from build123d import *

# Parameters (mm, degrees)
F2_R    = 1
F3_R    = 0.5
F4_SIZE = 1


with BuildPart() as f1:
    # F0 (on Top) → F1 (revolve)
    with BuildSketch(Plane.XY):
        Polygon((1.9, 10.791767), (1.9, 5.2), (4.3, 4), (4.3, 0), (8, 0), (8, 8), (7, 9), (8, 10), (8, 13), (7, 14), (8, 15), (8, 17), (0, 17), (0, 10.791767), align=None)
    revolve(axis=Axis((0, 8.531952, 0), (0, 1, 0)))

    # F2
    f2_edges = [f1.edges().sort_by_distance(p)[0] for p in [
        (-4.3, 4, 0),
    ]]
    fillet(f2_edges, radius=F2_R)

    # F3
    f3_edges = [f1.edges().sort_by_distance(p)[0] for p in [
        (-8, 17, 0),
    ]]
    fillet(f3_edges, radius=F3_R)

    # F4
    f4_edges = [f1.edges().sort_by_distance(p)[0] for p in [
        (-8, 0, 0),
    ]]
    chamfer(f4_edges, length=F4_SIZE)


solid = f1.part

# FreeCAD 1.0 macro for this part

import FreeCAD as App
import Part
import Sketcher

V = App.Vector


def edges_at(feature, points):
    """Names of the edges that pass closest to the given points."""
    edges = feature.Shape.Edges
    near = lambda p: min(range(len(edges)), key=lambda i: edges[i].distToShape(Part.Vertex(*p))[0])
    return sorted({f"Edge{near(p) + 1}" for p in points})

doc = App.newDocument("Part")
body = doc.addObject("PartDesign::Body", "Body")

# Sketch on XY plane
sketch1 = doc.addObject("Sketcher::SketchObject", "Sketch")
body.addObject(sketch1)
sketch1.AttachmentSupport = (doc.XY_Plane, [""])
sketch1.MapMode = "FlatFace"
sketch1.addGeometry([
    Part.LineSegment(V(1.9, 10.8, 0), V(1.9, 5.2, 0)),  # 0
    Part.LineSegment(V(1.9, 5.2, 0), V(4.3, 4, 0)),  # 1
    Part.LineSegment(V(4.3, 4, 0), V(4.3, 0, 0)),  # 2
    Part.LineSegment(V(4.3, 0, 0), V(8, 0, 0)),  # 3
    Part.LineSegment(V(8, 0, 0), V(8, 8, 0)),  # 4
    Part.LineSegment(V(8, 8, 0), V(7, 9, 0)),  # 5
    Part.LineSegment(V(7, 9, 0), V(8, 10, 0)),  # 6
    Part.LineSegment(V(8, 10, 0), V(8, 13, 0)),  # 7
    Part.LineSegment(V(8, 13, 0), V(7, 14, 0)),  # 8
    Part.LineSegment(V(7, 14, 0), V(8, 15, 0)),  # 9
    Part.LineSegment(V(8, 15, 0), V(8, 17, 0)),  # 10
    Part.LineSegment(V(8, 17, 0), V(0, 17, 0)),  # 11
    Part.LineSegment(V(0, 17, 0), V(0, 10.8, 0)),  # 12
    Part.LineSegment(V(0, 10.8, 0), V(1.9, 10.8, 0)),  # 13
], False)
sketch1.addConstraint([
    Sketcher.Constraint("Coincident", 0, 2, 1, 1),
    Sketcher.Constraint("Coincident", 1, 2, 2, 1),
    Sketcher.Constraint("Coincident", 2, 2, 3, 1),
    Sketcher.Constraint("Coincident", 3, 2, 4, 1),
    Sketcher.Constraint("Coincident", 4, 2, 5, 1),
    Sketcher.Constraint("Coincident", 5, 2, 6, 1),
    Sketcher.Constraint("Coincident", 6, 2, 7, 1),
    Sketcher.Constraint("Coincident", 7, 2, 8, 1),
    Sketcher.Constraint("Coincident", 8, 2, 9, 1),
    Sketcher.Constraint("Coincident", 9, 2, 10, 1),
    Sketcher.Constraint("Coincident", 10, 2, 11, 1),
    Sketcher.Constraint("Coincident", 11, 2, 12, 1),
    Sketcher.Constraint("Coincident", 12, 2, 13, 1),
    Sketcher.Constraint("Coincident", 13, 2, 0, 1),
    Sketcher.Constraint("Vertical", 0),
    Sketcher.Constraint("Vertical", 2),
    Sketcher.Constraint("Horizontal", 3),
    Sketcher.Constraint("Vertical", 4),
    Sketcher.Constraint("Vertical", 7),
    Sketcher.Constraint("Vertical", 10),
    Sketcher.Constraint("Horizontal", 11),
    Sketcher.Constraint("Vertical", 12),
    Sketcher.Constraint("Horizontal", 13),
    Sketcher.Constraint("PointOnObject", 2, 2, -1),
    Sketcher.Constraint("PointOnObject", 11, 2, -2),
    Sketcher.Constraint("Perpendicular", 5, 6),
    Sketcher.Constraint("Perpendicular", 6, 8),
    Sketcher.Constraint("Perpendicular", 8, 9),
    Sketcher.Constraint("Vertical", 4, 2, 6, 2),
    Sketcher.Constraint("Vertical", 5, 2, 8, 2),
    Sketcher.Constraint("Vertical", 7, 2, 9, 2),
    Sketcher.Constraint("Equal", 11, 4),
    Sketcher.Constraint("Equal", 5, 6),
    Sketcher.Constraint("DistanceX", 11, 2, 11, 1, 8.0),
    Sketcher.Constraint("DistanceY", 2, 2, 2, 1, 4.0),
    Sketcher.Constraint("DistanceY", 7, 1, 7, 2, 3.0),
    Sketcher.Constraint("DistanceY", 10, 1, 10, 2, 2.0),
    Sketcher.Constraint("DistanceX", 3, 1, 3, 2, 3.7),
    Sketcher.Constraint("DistanceX", 13, 1, 13, 2, 1.9),
    Sketcher.Constraint("DistanceX", -1, 1, 5, 2, 7.0),
    Sketcher.Constraint("DistanceY", -1, 1, 0, 2, 5.2),
    Sketcher.Constraint("DistanceY", 0, 2, 0, 1, 5.591767),
])
revolution = doc.addObject("PartDesign::Revolution", "Revolution")
body.addObject(revolution)
revolution.Profile = sketch1
revolution.ReferenceAxis = (sketch1, ["V_Axis"])
revolution.Angle = 360
doc.recompute()

fillet = doc.addObject("PartDesign::Fillet", "Fillet")
body.addObject(fillet)
fillet.Base = (revolution, edges_at(revolution, [(-4.3, 4, 0)]))
fillet.Radius = 1
doc.recompute()

fillet2 = doc.addObject("PartDesign::Fillet", "Fillet001")
body.addObject(fillet2)
fillet2.Base = (fillet, edges_at(fillet, [(-8, 17, 0)]))
fillet2.Radius = 0.5
doc.recompute()

chamfer = doc.addObject("PartDesign::Chamfer", "Chamfer")
body.addObject(chamfer)
chamfer.Base = (fillet2, edges_at(fillet2, [(-8, 0, 0)]))
chamfer.Size = 1

doc.recompute()
